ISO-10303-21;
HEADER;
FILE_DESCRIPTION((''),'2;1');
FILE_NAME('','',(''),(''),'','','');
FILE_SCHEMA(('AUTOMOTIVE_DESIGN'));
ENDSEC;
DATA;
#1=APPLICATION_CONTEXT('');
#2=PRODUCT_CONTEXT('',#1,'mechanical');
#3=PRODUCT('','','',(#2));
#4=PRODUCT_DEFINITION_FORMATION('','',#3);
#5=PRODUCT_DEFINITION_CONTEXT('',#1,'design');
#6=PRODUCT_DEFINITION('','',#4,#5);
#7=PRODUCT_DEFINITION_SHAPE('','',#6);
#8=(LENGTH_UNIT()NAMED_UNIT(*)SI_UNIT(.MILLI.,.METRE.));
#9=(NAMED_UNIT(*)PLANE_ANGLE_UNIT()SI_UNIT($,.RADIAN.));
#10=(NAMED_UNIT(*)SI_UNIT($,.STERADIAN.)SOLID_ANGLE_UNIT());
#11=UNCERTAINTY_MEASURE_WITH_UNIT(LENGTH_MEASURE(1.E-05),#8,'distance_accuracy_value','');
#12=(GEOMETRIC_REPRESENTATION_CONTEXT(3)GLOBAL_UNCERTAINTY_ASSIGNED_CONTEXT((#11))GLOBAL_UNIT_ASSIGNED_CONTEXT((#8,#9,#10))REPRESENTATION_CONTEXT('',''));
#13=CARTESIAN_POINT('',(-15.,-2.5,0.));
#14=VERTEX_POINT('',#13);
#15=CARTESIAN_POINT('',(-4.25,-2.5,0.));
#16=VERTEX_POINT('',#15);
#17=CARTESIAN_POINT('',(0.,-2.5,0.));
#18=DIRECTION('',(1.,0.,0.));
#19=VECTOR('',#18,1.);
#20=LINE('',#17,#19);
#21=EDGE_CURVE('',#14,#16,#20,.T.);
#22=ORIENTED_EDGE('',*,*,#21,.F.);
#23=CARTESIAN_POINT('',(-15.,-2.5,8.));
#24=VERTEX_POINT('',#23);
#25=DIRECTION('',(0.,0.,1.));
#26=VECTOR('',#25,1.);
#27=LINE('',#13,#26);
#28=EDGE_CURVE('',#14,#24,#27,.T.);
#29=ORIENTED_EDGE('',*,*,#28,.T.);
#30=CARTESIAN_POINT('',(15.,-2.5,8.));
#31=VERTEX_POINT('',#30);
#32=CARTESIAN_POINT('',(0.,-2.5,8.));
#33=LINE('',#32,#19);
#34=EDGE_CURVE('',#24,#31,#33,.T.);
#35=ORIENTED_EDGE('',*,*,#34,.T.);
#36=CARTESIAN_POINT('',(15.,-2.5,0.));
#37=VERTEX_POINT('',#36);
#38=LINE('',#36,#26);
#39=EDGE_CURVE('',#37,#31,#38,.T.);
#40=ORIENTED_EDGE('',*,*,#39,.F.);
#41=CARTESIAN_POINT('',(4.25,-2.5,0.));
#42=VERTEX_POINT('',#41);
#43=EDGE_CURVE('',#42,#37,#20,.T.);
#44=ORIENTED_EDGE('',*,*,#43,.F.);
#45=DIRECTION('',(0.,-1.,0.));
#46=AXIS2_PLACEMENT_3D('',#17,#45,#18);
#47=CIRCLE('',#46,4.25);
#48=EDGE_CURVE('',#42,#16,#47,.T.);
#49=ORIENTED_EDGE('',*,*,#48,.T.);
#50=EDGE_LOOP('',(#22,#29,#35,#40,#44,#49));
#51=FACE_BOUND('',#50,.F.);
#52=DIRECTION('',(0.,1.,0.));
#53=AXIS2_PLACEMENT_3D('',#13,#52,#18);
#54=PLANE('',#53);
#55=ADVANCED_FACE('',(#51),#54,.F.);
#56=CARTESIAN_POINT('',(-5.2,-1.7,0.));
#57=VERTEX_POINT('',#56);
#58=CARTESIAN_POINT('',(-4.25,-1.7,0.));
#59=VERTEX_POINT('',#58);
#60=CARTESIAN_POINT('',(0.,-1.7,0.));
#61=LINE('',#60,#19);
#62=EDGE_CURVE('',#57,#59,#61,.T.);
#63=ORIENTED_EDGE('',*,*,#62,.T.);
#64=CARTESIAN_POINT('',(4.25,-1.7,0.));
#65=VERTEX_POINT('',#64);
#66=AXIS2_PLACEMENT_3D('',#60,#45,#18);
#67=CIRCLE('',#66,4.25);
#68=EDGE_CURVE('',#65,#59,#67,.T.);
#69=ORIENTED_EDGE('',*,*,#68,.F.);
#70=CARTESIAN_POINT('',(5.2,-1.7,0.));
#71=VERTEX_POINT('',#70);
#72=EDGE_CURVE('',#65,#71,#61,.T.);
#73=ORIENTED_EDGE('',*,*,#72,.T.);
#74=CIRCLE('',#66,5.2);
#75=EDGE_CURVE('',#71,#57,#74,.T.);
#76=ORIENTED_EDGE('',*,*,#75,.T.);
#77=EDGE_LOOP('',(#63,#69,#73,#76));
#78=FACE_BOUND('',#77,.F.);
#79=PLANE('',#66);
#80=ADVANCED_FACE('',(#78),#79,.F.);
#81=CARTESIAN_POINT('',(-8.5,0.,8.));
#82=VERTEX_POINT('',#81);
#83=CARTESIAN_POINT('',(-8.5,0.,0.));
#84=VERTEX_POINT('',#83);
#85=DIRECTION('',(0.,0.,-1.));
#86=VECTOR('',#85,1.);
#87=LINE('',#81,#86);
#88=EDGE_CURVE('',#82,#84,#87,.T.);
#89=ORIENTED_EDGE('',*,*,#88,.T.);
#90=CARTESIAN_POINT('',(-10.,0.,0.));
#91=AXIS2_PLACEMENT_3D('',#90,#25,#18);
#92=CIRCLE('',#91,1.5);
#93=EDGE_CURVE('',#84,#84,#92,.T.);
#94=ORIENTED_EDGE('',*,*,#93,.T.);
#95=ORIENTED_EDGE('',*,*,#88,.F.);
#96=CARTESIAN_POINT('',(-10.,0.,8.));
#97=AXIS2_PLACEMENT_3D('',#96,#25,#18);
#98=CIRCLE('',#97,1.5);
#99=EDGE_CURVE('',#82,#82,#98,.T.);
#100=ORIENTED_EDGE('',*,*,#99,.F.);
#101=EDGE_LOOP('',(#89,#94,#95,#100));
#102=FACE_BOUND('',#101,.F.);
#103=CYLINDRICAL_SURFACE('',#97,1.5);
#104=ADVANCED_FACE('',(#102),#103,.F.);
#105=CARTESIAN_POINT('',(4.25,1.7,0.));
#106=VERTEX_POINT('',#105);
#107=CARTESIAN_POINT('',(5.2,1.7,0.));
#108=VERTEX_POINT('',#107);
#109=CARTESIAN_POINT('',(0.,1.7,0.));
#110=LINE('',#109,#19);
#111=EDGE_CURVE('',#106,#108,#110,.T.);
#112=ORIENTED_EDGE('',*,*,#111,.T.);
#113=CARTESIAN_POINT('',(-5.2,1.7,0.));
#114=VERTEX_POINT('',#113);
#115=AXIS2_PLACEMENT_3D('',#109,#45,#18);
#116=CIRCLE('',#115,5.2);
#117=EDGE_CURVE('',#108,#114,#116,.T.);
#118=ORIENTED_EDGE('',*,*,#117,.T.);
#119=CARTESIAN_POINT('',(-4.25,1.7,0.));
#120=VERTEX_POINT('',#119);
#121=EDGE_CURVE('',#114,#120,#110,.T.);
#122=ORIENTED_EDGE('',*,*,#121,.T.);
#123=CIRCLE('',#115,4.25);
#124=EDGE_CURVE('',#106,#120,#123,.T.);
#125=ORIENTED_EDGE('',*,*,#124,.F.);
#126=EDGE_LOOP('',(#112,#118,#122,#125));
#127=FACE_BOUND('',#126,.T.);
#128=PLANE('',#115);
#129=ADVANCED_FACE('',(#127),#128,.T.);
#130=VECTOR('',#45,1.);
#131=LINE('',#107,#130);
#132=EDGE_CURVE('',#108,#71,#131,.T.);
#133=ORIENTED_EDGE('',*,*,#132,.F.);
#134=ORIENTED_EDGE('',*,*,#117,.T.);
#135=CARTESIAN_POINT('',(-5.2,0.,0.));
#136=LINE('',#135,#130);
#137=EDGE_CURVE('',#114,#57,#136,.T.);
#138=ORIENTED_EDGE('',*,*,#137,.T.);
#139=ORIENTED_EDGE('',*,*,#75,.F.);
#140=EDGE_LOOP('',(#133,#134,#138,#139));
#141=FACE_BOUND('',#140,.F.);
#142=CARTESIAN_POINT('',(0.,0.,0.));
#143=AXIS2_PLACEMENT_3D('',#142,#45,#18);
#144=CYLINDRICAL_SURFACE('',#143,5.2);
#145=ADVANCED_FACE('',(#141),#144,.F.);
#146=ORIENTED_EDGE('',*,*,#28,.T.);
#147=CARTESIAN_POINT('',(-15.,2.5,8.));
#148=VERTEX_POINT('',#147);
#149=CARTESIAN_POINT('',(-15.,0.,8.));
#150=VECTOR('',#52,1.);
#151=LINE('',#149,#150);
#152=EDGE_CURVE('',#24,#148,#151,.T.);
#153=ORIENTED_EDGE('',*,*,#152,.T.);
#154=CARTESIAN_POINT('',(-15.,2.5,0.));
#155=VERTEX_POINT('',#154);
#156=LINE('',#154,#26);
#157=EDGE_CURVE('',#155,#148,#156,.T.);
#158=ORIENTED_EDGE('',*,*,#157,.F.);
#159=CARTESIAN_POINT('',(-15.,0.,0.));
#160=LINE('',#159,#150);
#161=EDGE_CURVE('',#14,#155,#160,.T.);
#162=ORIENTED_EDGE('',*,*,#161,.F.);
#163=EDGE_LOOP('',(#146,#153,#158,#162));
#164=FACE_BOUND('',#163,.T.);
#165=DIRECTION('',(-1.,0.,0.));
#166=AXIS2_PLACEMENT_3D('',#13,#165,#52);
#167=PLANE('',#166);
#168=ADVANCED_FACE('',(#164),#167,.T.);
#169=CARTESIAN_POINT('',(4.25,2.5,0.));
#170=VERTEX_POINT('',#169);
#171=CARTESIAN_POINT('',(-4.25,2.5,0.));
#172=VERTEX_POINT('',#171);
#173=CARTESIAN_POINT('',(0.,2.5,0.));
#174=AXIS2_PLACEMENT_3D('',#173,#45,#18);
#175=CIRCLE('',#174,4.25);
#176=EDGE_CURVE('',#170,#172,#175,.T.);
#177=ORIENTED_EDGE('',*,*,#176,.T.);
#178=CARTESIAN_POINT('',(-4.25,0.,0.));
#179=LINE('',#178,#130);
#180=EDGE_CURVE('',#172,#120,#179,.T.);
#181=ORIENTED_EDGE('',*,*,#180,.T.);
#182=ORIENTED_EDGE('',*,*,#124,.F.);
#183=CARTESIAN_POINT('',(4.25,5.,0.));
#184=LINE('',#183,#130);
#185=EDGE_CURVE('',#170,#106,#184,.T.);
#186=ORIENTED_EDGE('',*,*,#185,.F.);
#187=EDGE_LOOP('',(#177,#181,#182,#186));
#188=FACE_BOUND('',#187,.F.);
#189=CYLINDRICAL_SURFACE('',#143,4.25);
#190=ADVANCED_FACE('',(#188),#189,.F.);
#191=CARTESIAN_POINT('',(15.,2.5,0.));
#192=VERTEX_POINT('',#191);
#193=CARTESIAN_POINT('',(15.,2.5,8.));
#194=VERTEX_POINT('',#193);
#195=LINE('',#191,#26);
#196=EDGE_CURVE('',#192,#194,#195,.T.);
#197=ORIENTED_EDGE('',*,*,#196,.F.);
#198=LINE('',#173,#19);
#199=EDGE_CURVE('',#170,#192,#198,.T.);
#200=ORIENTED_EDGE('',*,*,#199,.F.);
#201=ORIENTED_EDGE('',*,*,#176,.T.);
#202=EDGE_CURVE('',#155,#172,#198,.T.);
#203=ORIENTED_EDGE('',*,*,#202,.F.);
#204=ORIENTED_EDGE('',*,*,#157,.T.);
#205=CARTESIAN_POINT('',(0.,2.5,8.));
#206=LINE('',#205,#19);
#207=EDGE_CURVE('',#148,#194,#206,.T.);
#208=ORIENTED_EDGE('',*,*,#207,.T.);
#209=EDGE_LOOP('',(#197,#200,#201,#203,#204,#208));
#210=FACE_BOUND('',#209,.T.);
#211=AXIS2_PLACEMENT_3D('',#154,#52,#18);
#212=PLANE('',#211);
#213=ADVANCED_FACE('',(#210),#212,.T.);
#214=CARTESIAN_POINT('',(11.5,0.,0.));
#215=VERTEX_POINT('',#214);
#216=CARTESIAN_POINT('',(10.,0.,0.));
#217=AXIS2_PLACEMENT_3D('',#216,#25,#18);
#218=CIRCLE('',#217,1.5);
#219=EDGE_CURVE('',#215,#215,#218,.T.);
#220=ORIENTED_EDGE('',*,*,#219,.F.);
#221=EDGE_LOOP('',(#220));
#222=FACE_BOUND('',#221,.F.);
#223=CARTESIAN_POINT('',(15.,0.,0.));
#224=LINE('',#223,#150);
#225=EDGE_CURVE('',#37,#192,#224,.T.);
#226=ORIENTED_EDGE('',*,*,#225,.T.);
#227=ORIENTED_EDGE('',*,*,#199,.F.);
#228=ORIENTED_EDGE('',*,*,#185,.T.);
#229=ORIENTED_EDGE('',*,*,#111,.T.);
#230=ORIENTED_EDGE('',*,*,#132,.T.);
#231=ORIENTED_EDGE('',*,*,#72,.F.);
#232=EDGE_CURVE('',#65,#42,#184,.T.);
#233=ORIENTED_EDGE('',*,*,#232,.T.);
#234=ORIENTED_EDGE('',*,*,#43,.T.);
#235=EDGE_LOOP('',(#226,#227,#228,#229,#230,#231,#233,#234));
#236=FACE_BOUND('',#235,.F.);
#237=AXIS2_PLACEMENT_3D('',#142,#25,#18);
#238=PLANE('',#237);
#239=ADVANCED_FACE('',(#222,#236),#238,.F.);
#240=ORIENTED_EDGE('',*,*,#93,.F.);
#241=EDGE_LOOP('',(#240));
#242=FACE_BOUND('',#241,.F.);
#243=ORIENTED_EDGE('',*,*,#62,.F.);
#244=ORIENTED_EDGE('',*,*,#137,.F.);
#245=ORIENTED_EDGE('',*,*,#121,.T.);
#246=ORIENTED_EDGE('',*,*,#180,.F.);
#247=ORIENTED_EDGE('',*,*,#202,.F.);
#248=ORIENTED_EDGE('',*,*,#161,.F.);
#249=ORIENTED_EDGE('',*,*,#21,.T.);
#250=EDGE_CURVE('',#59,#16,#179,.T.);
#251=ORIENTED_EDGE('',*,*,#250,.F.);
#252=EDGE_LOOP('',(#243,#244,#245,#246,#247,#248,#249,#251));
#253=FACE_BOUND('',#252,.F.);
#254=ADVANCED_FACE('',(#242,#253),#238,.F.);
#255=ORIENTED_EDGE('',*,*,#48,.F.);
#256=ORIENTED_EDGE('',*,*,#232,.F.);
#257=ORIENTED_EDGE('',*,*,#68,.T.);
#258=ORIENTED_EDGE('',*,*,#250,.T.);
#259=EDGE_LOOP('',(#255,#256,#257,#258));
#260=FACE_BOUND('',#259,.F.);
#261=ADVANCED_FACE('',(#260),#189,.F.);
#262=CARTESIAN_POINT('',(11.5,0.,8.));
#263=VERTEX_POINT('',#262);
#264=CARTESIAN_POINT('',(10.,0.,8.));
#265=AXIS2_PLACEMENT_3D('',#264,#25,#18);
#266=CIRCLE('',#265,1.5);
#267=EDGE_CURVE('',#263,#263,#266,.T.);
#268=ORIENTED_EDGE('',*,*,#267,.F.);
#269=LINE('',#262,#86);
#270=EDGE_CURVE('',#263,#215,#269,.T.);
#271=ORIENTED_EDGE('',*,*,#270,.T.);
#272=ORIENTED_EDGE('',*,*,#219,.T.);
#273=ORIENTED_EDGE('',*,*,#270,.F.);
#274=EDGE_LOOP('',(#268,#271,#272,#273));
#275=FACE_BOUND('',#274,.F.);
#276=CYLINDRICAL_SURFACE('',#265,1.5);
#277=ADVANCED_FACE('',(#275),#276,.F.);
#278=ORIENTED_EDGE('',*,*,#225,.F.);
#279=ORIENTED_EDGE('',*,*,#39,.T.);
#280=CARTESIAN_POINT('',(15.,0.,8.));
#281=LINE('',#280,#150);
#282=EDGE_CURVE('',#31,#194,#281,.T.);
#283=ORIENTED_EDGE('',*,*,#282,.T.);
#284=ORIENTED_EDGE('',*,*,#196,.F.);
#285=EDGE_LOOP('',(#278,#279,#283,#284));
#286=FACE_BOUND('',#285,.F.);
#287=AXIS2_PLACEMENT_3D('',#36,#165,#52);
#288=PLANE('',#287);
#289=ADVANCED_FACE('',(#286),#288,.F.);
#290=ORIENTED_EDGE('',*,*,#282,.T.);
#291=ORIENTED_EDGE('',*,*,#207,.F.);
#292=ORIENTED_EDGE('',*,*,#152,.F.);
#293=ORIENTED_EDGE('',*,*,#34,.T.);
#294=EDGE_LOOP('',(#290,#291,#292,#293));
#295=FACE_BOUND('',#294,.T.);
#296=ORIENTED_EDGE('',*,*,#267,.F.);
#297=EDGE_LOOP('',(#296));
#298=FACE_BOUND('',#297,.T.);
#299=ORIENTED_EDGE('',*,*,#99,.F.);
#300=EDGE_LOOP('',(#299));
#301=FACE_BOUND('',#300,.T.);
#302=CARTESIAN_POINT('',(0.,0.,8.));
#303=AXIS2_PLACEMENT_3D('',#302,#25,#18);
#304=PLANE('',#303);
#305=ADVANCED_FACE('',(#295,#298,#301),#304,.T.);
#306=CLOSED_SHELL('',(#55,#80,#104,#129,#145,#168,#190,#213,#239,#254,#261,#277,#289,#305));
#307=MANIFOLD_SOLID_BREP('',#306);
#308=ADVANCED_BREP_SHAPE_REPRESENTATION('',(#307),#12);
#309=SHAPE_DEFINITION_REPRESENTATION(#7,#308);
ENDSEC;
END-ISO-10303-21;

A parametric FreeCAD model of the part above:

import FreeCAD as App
import Part
import Sketcher


def add_polygon(sketch, points):
    """Adds a closed chain of lines whose ends are joined by coincident constraints."""
    first, n = sketch.GeometryCount, len(points)
    for a, b in zip(points, points[1:] + points[:1]):
        sketch.addGeometry(Part.LineSegment(App.Vector(*a, 0), App.Vector(*b, 0)), False)
    for i in range(n):
        sketch.addConstraint(Sketcher.Constraint("Coincident", first + i, 2, first + (i + 1) % n, 1))

doc = App.newDocument("Part")
body = doc.addObject("PartDesign::Body", "Body")

sketch1 = body.newObject("Sketcher::SketchObject", "Sketch")
sketch1.AttachmentSupport = (doc.getObject("XY_Plane"), [""])
sketch1.MapMode = "FlatFace"
add_polygon(sketch1, [(-15, 2), (-15, -2), (15, -2), (15, 2)])
sketch1.addConstraint(Sketcher.Constraint("Vertical", 0))
sketch1.addConstraint(Sketcher.Constraint("Horizontal", 1))
sketch1.addConstraint(Sketcher.Constraint("Vertical", 2))
sketch1.addConstraint(Sketcher.Constraint("Horizontal", 3))
sketch1.addConstraint(Sketcher.Constraint("Symmetric", 0, 2, 2, 2, -1, 1))
sketch1.addConstraint(Sketcher.Constraint("DistanceX", 1, 1, 1, 2, 30.0))
sketch1.addConstraint(Sketcher.Constraint("DistanceY", 0, 2, 0, 1, 5.0))
pad1 = body.newObject("PartDesign::Pad", "Pad")
pad1.Profile = sketch1
pad1.Length = 8

sketch2 = body.newObject("Sketcher::SketchObject", "Sketch001")
sketch2.AttachmentSupport = (doc.getObject("XZ_Plane"), [""])
sketch2.MapMode = "FlatFace"
sketch2.addGeometry(Part.Circle(App.Vector(0, 0, 0), App.Vector(0, 0, 1), 4.2), False)
sketch2.addConstraint(Sketcher.Constraint("Coincident", 0, 3, -1, 1))
sketch2.addConstraint(Sketcher.Constraint("Diameter", 0, 8.5))
pocket1 = body.newObject("PartDesign::Pocket", "Pocket")
pocket1.Profile = sketch2
pocket1.Length = 10
pocket1.Midplane = True

sketch3 = body.newObject("Sketcher::SketchObject", "Sketch002")
sketch3.AttachmentSupport = (doc.getObject("XZ_Plane"), [""])
sketch3.MapMode = "FlatFace"
sketch3.addGeometry(Part.Circle(App.Vector(0, 0, 0), App.Vector(0, 0, 1), 5), False)
sketch3.addConstraint(Sketcher.Constraint("Coincident", 0, 3, -1, 1))
sketch3.addConstraint(Sketcher.Constraint("Diameter", 0, 10.4))
pocket2 = body.newObject("PartDesign::Pocket", "Pocket001")
pocket2.Profile = sketch3
pocket2.Length = 3.4
pocket2.Midplane = True

sketch4 = body.newObject("Sketcher::SketchObject", "Sketch003")
sketch4.AttachmentSupport = (doc.getObject("XY_Plane"), [""])
sketch4.MapMode = "FlatFace"
sketch4.AttachmentOffset = App.Placement(App.Vector(0, 0, 8), App.Rotation())
sketch4.addGeometry(Part.Circle(App.Vector(-10, 0, 0), App.Vector(0, 0, 1), 1.5), False)
sketch4.addGeometry(Part.Circle(App.Vector(10, 0, 0), App.Vector(0, 0, 1), 1.5), False)
sketch4.addConstraint(Sketcher.Constraint("Equal", 0, 1))
sketch4.addConstraint(Sketcher.Constraint("Symmetric", 0, 3, 1, 3, -1, 1))
sketch4.addConstraint(Sketcher.Constraint("PointOnObject", 0, 3, -1))
sketch4.addConstraint(Sketcher.Constraint("Diameter", 0, 3.0))
sketch4.addConstraint(Sketcher.Constraint("DistanceX", 0, 3, -1, 1, 10.0))
pocket3 = body.newObject("PartDesign::Pocket", "Pocket002")
pocket3.Profile = sketch4
pocket3.Type = "ThroughAll"

doc.recompute()
